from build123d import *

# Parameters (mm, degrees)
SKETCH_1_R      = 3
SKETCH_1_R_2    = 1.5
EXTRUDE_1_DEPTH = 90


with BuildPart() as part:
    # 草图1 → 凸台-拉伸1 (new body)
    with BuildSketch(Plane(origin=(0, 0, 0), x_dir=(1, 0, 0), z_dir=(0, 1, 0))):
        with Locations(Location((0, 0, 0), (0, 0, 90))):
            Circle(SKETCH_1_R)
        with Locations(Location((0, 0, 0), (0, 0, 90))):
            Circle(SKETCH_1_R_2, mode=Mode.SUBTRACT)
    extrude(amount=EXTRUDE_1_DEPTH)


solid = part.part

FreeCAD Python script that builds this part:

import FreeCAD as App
import Part
import Sketcher
Q = App.Units.Quantity

doc = App.newDocument("Part")
body = doc.addObject("PartDesign::Body", "Body")

sketch1 = doc.addObject("Sketcher::SketchObject", "Sketch")
body.addObject(sketch1)
sketch1.AttachmentSupport = (doc.XZ_Plane, [""])
sketch1.MapMode = "FlatFace"
sketch1.addGeometry([
    Part.Circle(App.Vector(0, 0, 0), App.Vector(0, 0, 1), 3),
    Part.Circle(App.Vector(0, 0, 0), App.Vector(0, 0, 1), 1.5),
], False)
sketch1.addConstraint([
    Sketcher.Constraint("Coincident", 0, 3, -1, 1),
    Sketcher.Constraint("Coincident", 1, 3, -1, 1),
    Sketcher.Constraint("Diameter", 0, Q("6 mm")),
    Sketcher.Constraint("Diameter", 1, Q("3 mm")),
])
pad1 = doc.addObject("PartDesign::Pad", "Pad")
body.addObject(pad1)
pad1.Profile = sketch1
pad1.Length = 90
pad1.Reversed = True

doc.recompute()
